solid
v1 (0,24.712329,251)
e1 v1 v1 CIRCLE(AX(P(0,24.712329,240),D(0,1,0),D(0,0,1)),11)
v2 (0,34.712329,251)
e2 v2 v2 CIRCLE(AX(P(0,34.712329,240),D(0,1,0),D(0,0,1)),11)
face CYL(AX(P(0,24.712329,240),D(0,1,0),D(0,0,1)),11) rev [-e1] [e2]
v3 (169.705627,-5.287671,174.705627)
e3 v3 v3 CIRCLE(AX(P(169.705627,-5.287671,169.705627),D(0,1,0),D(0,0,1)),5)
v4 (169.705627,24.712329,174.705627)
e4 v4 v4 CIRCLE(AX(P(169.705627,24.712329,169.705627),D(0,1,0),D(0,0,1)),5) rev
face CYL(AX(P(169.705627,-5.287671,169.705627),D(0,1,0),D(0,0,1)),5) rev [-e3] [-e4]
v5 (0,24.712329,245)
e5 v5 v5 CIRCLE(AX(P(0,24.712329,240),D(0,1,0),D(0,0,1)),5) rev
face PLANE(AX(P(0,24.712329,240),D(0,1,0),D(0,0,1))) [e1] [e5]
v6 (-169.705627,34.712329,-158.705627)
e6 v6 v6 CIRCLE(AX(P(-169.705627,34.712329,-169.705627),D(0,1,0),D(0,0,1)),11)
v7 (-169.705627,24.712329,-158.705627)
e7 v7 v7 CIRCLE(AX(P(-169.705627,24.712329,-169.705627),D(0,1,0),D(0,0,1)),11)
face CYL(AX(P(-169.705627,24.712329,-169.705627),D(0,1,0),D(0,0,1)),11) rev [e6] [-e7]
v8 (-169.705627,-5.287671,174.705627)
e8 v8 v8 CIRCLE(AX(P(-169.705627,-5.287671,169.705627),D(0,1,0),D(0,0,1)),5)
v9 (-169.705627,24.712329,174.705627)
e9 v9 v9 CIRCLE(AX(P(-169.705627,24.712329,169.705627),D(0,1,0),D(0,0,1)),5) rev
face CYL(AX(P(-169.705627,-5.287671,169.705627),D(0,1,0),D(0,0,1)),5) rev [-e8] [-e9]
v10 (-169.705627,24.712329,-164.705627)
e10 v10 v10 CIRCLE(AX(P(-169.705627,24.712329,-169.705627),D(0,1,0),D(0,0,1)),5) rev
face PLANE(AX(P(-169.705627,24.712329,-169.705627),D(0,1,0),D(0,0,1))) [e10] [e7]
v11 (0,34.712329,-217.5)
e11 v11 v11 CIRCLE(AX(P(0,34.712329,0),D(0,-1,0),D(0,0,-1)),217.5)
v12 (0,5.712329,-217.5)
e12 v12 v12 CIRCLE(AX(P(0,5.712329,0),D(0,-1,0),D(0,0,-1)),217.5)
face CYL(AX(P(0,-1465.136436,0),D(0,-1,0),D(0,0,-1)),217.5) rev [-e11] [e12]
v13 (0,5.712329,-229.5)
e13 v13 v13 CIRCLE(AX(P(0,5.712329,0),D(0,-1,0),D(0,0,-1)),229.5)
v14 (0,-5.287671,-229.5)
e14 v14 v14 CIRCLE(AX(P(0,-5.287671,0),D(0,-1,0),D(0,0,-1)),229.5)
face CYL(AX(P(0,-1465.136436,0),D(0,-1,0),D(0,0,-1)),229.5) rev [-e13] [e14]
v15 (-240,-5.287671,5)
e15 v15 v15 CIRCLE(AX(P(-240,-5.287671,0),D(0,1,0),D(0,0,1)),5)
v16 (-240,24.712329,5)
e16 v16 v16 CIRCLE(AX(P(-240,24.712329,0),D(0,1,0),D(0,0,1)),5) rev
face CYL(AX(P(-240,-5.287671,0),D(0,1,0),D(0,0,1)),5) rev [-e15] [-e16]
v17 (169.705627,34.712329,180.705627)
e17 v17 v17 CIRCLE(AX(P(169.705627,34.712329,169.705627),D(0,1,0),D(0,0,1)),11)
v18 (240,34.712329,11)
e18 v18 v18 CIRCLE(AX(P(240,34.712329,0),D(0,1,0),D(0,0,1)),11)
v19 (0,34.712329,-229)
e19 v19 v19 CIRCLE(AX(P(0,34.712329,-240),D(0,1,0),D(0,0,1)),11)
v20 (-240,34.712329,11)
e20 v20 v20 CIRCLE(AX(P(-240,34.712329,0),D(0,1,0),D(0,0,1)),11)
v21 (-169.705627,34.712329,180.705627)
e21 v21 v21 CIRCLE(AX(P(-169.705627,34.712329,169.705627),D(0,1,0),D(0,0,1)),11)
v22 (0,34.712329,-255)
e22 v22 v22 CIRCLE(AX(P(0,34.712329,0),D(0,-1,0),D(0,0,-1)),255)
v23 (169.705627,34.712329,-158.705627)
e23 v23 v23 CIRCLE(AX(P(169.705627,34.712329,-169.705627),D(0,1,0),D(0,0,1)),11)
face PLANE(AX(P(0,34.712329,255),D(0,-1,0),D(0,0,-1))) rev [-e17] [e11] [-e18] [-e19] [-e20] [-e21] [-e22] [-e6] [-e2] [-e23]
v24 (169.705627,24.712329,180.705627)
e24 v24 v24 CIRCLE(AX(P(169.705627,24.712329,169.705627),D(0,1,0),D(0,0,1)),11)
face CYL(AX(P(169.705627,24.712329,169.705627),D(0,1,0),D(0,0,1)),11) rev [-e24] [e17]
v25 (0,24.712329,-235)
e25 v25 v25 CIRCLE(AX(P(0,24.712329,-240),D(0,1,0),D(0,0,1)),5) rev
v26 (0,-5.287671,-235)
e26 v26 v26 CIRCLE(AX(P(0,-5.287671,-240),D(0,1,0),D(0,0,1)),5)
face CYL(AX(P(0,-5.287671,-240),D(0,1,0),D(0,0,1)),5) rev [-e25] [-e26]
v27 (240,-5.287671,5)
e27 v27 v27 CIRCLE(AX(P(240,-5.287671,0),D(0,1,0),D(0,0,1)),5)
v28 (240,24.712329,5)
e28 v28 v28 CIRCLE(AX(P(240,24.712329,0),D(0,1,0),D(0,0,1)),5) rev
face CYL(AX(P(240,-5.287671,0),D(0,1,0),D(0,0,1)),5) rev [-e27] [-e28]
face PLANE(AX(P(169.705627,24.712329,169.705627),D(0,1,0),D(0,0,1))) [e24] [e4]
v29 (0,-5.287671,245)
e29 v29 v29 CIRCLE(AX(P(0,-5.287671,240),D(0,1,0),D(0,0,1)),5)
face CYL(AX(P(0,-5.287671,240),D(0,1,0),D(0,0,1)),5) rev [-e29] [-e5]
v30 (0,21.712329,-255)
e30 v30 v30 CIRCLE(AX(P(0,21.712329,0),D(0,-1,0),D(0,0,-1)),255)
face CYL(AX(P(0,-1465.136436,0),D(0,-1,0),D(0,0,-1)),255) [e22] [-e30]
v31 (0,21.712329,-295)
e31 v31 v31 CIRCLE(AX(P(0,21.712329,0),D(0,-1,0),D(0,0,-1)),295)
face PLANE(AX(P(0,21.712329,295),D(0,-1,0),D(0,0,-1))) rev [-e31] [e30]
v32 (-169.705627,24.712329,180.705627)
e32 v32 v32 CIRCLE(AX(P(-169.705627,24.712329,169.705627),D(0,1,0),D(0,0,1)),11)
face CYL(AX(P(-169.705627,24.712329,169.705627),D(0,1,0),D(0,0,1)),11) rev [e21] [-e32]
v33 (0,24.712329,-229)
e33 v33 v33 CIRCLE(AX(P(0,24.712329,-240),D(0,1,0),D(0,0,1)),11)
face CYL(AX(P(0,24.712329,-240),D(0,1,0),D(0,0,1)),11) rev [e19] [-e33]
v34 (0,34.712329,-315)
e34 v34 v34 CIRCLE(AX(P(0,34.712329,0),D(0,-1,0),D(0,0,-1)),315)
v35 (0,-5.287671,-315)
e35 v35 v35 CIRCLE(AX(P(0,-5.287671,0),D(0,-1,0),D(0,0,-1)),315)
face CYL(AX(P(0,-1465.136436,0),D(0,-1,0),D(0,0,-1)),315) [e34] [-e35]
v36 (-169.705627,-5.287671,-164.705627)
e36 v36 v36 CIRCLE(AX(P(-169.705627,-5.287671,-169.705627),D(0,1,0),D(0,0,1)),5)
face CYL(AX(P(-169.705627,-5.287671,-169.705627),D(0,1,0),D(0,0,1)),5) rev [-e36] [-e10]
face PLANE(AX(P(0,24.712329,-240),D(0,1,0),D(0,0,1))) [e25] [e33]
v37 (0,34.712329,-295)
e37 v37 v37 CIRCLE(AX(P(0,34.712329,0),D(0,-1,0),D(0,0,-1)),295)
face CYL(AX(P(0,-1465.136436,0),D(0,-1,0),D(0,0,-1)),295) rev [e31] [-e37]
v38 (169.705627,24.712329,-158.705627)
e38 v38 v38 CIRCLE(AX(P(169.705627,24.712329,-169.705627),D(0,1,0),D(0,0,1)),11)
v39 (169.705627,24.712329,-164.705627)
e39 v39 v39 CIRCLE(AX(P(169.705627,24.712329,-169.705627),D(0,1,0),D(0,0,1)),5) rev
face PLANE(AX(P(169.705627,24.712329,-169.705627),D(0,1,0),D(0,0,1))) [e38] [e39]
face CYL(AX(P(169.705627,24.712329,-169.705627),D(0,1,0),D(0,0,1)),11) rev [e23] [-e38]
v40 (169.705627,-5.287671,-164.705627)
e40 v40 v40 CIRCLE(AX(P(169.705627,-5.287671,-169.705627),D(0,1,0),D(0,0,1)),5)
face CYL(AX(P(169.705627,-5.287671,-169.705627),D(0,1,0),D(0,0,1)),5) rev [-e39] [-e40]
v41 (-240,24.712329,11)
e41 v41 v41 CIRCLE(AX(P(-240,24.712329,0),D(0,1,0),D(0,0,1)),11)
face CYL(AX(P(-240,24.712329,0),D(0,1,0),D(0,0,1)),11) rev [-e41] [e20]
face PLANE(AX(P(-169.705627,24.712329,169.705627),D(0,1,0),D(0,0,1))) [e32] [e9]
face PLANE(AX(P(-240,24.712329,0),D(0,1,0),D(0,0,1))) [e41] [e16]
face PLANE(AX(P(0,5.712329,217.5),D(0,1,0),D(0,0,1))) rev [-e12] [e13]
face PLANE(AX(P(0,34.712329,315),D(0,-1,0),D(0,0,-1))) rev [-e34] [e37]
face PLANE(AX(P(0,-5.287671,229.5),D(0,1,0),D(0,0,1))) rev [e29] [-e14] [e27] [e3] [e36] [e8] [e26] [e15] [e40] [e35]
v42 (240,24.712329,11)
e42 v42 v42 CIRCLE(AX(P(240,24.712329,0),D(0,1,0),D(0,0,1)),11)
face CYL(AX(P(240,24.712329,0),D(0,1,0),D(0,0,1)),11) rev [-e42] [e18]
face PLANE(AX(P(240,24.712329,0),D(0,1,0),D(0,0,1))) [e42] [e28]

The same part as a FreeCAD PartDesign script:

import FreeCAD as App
import Part
import Sketcher
from FreeCAD import Vector
Q = App.Units.Quantity

doc = App.newDocument("Part")
params = doc.addObject("Spreadsheet::Sheet", "Params")
for row, (alias, value) in enumerate([
    ("sketch1_width", "40 mm"),
    ("sketch1_width2", "11 mm"),
    ("sketch1_width3", "13 mm"),
    ("sketch1_height", "20 mm"),
    ("sketch1_height2", "12 mm"),
    ("revolution_angle", "360 deg"),
    ("sketch2_diameter", "10 mm"),
    ("sketch3_diameter", "22 mm"),
    ("pocket2_length", "10 mm"),
], start=1):
    params.set(f"A{row}", alias)
    params.set(f"B{row}", "=" + value)
    params.setAlias(f"B{row}", alias)

body = doc.addObject("PartDesign::Body", "Body")

sketch1 = body.newObject("Sketcher::SketchObject", "Sketch")
sketch1.AttachmentSupport = (doc.getObject("YZ_Plane"), [""])
sketch1.MapMode = "FlatFace"
sketch1.addGeometry(Part.LineSegment(Vector(35, 295, 0), Vector(35, 315, 0)), False)
sketch1.addGeometry(Part.LineSegment(Vector(35, 315, 0), Vector(-5, 315, 0)), False)
sketch1.addGeometry(Part.LineSegment(Vector(-5, 315, 0), Vector(-5, 230, 0)), False)
sketch1.addGeometry(Part.LineSegment(Vector(-5, 230, 0), Vector(6, 230, 0)), False)
sketch1.addGeometry(Part.LineSegment(Vector(6, 230, 0), Vector(6, 218, 0)), False)
sketch1.addGeometry(Part.LineSegment(Vector(6, 218, 0), Vector(35, 218, 0)), False)
sketch1.addGeometry(Part.LineSegment(Vector(35, 218, 0), Vector(35, 255, 0)), False)
sketch1.addGeometry(Part.LineSegment(Vector(35, 255, 0), Vector(22, 255, 0)), False)
sketch1.addGeometry(Part.LineSegment(Vector(22, 255, 0), Vector(22, 295, 0)), False)
sketch1.addGeometry(Part.LineSegment(Vector(22, 295, 0), Vector(35, 295, 0)), False)
sketch1.addConstraint(Sketcher.Constraint("Coincident", 0, 2, 1, 1))
sketch1.addConstraint(Sketcher.Constraint("Coincident", 1, 2, 2, 1))
sketch1.addConstraint(Sketcher.Constraint("Coincident", 2, 2, 3, 1))
sketch1.addConstraint(Sketcher.Constraint("Coincident", 3, 2, 4, 1))
sketch1.addConstraint(Sketcher.Constraint("Coincident", 4, 2, 5, 1))
sketch1.addConstraint(Sketcher.Constraint("Coincident", 5, 2, 6, 1))
sketch1.addConstraint(Sketcher.Constraint("Coincident", 6, 2, 7, 1))
sketch1.addConstraint(Sketcher.Constraint("Coincident", 7, 2, 8, 1))
sketch1.addConstraint(Sketcher.Constraint("Coincident", 8, 2, 9, 1))
sketch1.addConstraint(Sketcher.Constraint("Coincident", 9, 2, 0, 1))
sketch1.addConstraint(Sketcher.Constraint("Vertical", 0))
sketch1.addConstraint(Sketcher.Constraint("Horizontal", 1))
sketch1.addConstraint(Sketcher.Constraint("Vertical", 2))
sketch1.addConstraint(Sketcher.Constraint("Horizontal", 3))
sketch1.addConstraint(Sketcher.Constraint("Vertical", 4))
sketch1.addConstraint(Sketcher.Constraint("Horizontal", 5))
sketch1.addConstraint(Sketcher.Constraint("Vertical", 6))
sketch1.addConstraint(Sketcher.Constraint("Horizontal", 7))
sketch1.addConstraint(Sketcher.Constraint("Vertical", 8))
sketch1.addConstraint(Sketcher.Constraint("Horizontal", 9))
sketch1.addConstraint(Sketcher.Constraint("Vertical", 0, 2, 5, 2))
sketch1.addConstraint(Sketcher.Constraint("Equal", 1, 8))
sketch1.addConstraint(Sketcher.Constraint("DistanceX", 1, 2, 1, 1, Q("40 mm")))
sketch1.addConstraint(Sketcher.Constraint("DistanceX", 3, 1, 3, 2, Q("11 mm")))
sketch1.addConstraint(Sketcher.Constraint("DistanceX", 7, 2, 7, 1, Q("13 mm")))
sketch1.addConstraint(Sketcher.Constraint("DistanceY", 0, 1, 0, 2, Q("20 mm")))
sketch1.addConstraint(Sketcher.Constraint("DistanceY", 4, 2, 4, 1, Q("12 mm")))
sketch1.addConstraint(Sketcher.Constraint("DistanceY", 2, 2, 2, 1, Q("85.5 mm")))
sketch1.addConstraint(Sketcher.Constraint("DistanceY", -1, 1, 0, 2, Q("315 mm")))
sketch1.addConstraint(Sketcher.Constraint("DistanceX", -1, 1, 0, 2, Q("34.712329 mm")))
sketch1.setExpression("Constraints[22]", "Params.sketch1_width")
sketch1.setExpression("Constraints[23]", "Params.sketch1_width2")
sketch1.setExpression("Constraints[24]", "Params.sketch1_width3")
sketch1.setExpression("Constraints[25]", "Params.sketch1_height")
sketch1.setExpression("Constraints[26]", "Params.sketch1_height2")
revolution = body.newObject("PartDesign::Revolution", "Revolution")
revolution.Profile = sketch1
revolution.ReferenceAxis = (sketch1, ["H_Axis"])
revolution.setExpression("Angle", "Params.revolution_angle")

sketch2 = body.newObject("Sketcher::SketchObject", "Sketch001")
sketch2.AttachmentSupport = (doc.getObject("XZ_Plane"), [""])
sketch2.MapMode = "FlatFace"
sketch2.AttachmentOffset = App.Placement(Vector(0, 0, -34.712329), App.Rotation())
sketch2.addGeometry(Part.Circle(Vector(0, -240, 0), Vector(0, 0, 1), 5), False)
sketch2.addGeometry(Part.Circle(Vector(170, -170, 0), Vector(0, 0, 1), 5), False)
sketch2.addGeometry(Part.Circle(Vector(240, 0, 0), Vector(0, 0, 1), 5), False)
sketch2.addGeometry(Part.Circle(Vector(170, 170, 0), Vector(0, 0, 1), 5), False)
sketch2.addGeometry(Part.Circle(Vector(0, 240, 0), Vector(0, 0, 1), 5), False)
sketch2.addGeometry(Part.Circle(Vector(-170, 170, 0), Vector(0, 0, 1), 5), False)
sketch2.addGeometry(Part.Circle(Vector(-240, 0, 0), Vector(0, 0, 1), 5), False)
sketch2.addGeometry(Part.Circle(Vector(-170, -170, 0), Vector(0, 0, 1), 5), False)
sketch2.addConstraint(Sketcher.Constraint("Equal", 0, 1))
sketch2.addConstraint(Sketcher.Constraint("Equal", 1, 2))
sketch2.addConstraint(Sketcher.Constraint("Equal", 2, 3))
sketch2.addConstraint(Sketcher.Constraint("Equal", 3, 4))
sketch2.addConstraint(Sketcher.Constraint("Equal", 4, 5))
sketch2.addConstraint(Sketcher.Constraint("Equal", 5, 6))
sketch2.addConstraint(Sketcher.Constraint("Equal", 6, 7))
sketch2.addConstraint(Sketcher.Constraint("Symmetric", 0, 3, 4, 3, -1, 1))
sketch2.addConstraint(Sketcher.Constraint("Symmetric", 1, 3, 5, 3, -1, 1))
sketch2.addConstraint(Sketcher.Constraint("Symmetric", 2, 3, 6, 3, -1, 1))
sketch2.addConstraint(Sketcher.Constraint("Symmetric", 3, 3, 7, 3, -1, 1))
sketch2.addConstraint(Sketcher.Constraint("Symmetric", 3, 3, 5, 3, -2))
sketch2.addConstraint(Sketcher.Constraint("PointOnObject", 0, 3, -2))
sketch2.addConstraint(Sketcher.Constraint("PointOnObject", 2, 3, -1))
sketch2.addConstraint(Sketcher.Constraint("Diameter", 0, Q("10 mm")))
sketch2.addConstraint(Sketcher.Constraint("DistanceY", 0, 3, -1, 1, Q("240 mm")))
sketch2.addConstraint(Sketcher.Constraint("DistanceX", -1, 1, 2, 3, Q("240 mm")))
sketch2.addConstraint(Sketcher.Constraint("DistanceX", -1, 1, 1, 3, Q("169.705627 mm")))
sketch2.addConstraint(Sketcher.Constraint("DistanceY", 1, 3, -1, 1, Q("169.705627 mm")))
sketch2.setExpression("Constraints[14]", "Params.sketch2_diameter")
pocket1 = body.newObject("PartDesign::Pocket", "Pocket")
pocket1.Profile = sketch2
pocket1.Type = "ThroughAll"
pocket1.Reversed = True

sketch3 = body.newObject("Sketcher::SketchObject", "Sketch002")
sketch3.AttachmentSupport = (doc.getObject("XZ_Plane"), [""])
sketch3.MapMode = "FlatFace"
sketch3.AttachmentOffset = App.Placement(Vector(0, 0, -34.712329), App.Rotation())
sketch3.addGeometry(Part.Circle(Vector(0, -240, 0), Vector(0, 0, 1), 11), False)
sketch3.addGeometry(Part.Circle(Vector(170, -170, 0), Vector(0, 0, 1), 11), False)
sketch3.addGeometry(Part.Circle(Vector(240, 0, 0), Vector(0, 0, 1), 11), False)
sketch3.addGeometry(Part.Circle(Vector(170, 170, 0), Vector(0, 0, 1), 11), False)
sketch3.addGeometry(Part.Circle(Vector(0, 240, 0), Vector(0, 0, 1), 11), False)
sketch3.addGeometry(Part.Circle(Vector(-170, 170, 0), Vector(0, 0, 1), 11), False)
sketch3.addGeometry(Part.Circle(Vector(-240, 0, 0), Vector(0, 0, 1), 11), False)
sketch3.addGeometry(Part.Circle(Vector(-170, -170, 0), Vector(0, 0, 1), 11), False)
sketch3.addConstraint(Sketcher.Constraint("Equal", 0, 1))
sketch3.addConstraint(Sketcher.Constraint("Equal", 1, 2))
sketch3.addConstraint(Sketcher.Constraint("Equal", 2, 3))
sketch3.addConstraint(Sketcher.Constraint("Equal", 3, 4))
sketch3.addConstraint(Sketcher.Constraint("Equal", 4, 5))
sketch3.addConstraint(Sketcher.Constraint("Equal", 5, 6))
sketch3.addConstraint(Sketcher.Constraint("Equal", 6, 7))
sketch3.addConstraint(Sketcher.Constraint("Symmetric", 0, 3, 4, 3, -1, 1))
sketch3.addConstraint(Sketcher.Constraint("Symmetric", 1, 3, 5, 3, -1, 1))
sketch3.addConstraint(Sketcher.Constraint("Symmetric", 2, 3, 6, 3, -1, 1))
sketch3.addConstraint(Sketcher.Constraint("Symmetric", 3, 3, 7, 3, -1, 1))
sketch3.addConstraint(Sketcher.Constraint("Symmetric", 3, 3, 5, 3, -2))
sketch3.addConstraint(Sketcher.Constraint("PointOnObject", 0, 3, -2))
sketch3.addConstraint(Sketcher.Constraint("PointOnObject", 2, 3, -1))
sketch3.addConstraint(Sketcher.Constraint("Diameter", 0, Q("22 mm")))
sketch3.addConstraint(Sketcher.Constraint("DistanceY", 0, 3, -1, 1, Q("240 mm")))
sketch3.addConstraint(Sketcher.Constraint("DistanceX", -1, 1, 2, 3, Q("240 mm")))
sketch3.addConstraint(Sketcher.Constraint("DistanceX", -1, 1, 1, 3, Q("169.705627 mm")))
sketch3.addConstraint(Sketcher.Constraint("DistanceY", 1, 3, -1, 1, Q("169.705627 mm")))
sketch3.setExpression("Constraints[14]", "Params.sketch3_diameter")
pocket2 = body.newObject("PartDesign::Pocket", "Pocket001")
pocket2.Profile = sketch3
pocket2.setExpression("Length", "Params.pocket2_length")
pocket2.Reversed = True

doc.recompute()
